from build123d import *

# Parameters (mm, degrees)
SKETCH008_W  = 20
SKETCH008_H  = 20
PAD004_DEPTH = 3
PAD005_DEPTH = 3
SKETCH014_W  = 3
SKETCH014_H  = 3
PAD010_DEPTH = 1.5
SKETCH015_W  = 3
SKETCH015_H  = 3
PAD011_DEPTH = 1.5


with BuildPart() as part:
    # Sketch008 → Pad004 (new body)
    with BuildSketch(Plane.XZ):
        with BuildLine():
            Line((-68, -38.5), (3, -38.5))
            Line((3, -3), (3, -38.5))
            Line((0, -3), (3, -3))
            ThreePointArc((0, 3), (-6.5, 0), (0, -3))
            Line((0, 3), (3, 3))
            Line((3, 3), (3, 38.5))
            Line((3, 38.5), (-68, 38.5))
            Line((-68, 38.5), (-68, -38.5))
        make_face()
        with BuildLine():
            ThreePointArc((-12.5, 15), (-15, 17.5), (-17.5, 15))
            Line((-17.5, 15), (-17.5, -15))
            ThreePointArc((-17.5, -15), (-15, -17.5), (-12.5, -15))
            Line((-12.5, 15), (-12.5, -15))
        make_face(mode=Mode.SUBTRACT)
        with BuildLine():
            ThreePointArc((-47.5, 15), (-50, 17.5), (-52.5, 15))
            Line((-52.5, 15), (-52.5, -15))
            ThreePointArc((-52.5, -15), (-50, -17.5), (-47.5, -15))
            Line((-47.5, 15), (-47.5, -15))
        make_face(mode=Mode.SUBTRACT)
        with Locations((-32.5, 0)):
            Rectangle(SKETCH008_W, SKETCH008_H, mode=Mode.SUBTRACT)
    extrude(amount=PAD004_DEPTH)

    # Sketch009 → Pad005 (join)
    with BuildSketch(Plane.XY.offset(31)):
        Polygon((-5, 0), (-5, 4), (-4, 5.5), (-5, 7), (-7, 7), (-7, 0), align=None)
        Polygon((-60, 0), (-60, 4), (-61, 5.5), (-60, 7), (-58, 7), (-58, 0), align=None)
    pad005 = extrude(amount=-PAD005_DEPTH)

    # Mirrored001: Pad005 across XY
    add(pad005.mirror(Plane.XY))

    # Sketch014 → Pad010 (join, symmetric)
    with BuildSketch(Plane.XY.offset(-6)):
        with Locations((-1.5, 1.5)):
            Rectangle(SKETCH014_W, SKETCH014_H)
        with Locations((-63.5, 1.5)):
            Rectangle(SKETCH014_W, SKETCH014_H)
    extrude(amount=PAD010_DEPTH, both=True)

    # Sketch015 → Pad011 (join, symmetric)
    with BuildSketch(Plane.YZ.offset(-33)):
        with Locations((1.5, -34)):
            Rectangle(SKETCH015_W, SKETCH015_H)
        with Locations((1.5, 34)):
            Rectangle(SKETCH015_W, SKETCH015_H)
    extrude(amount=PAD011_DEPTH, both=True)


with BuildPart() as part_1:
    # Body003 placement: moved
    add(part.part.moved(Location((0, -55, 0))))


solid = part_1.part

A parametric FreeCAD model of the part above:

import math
import FreeCAD as App
import Part
import Sketcher

doc = App.newDocument("Part")
body = doc.addObject("PartDesign::Body", "Body")

# Sketch on XZ plane
sketch1 = body.newObject("Sketcher::SketchObject", "Sketch")
sketch1.AttachmentSupport = (doc.getObject("XZ_Plane"), [""])
sketch1.MapMode = "FlatFace"
sketch1.addGeometry([
    Part.LineSegment(App.Vector(-68, -38.5, 0), App.Vector(3, -38.5, 0)),  # 0
    Part.LineSegment(App.Vector(3, -38.5, 0), App.Vector(3, -3, 0)),  # 1
    Part.LineSegment(App.Vector(3, -3, 0), App.Vector(0, -3, 0)),  # 2
    Part.ArcOfCircle(Part.Circle(App.Vector(-2.6, 0, 0), App.Vector(0, 0, 1), 3.9), math.radians(50), math.radians(310)),  # 3
    Part.LineSegment(App.Vector(0, 3, 0), App.Vector(3, 3, 0)),  # 4
    Part.LineSegment(App.Vector(3, 3, 0), App.Vector(3, 38.5, 0)),  # 5
    Part.LineSegment(App.Vector(3, 38.5, 0), App.Vector(-68, 38.5, 0)),  # 6
    Part.LineSegment(App.Vector(-68, 38.5, 0), App.Vector(-68, -38.5, 0)),  # 7
    Part.ArcOfCircle(Part.Circle(App.Vector(-50, 15, 0), App.Vector(0, 0, 1), 2.5), math.radians(0), math.radians(180)),  # 8
    Part.LineSegment(App.Vector(-47.5, 15, 0), App.Vector(-47.5, -15, 0)),  # 9
    Part.ArcOfCircle(Part.Circle(App.Vector(-50, -15, 0), App.Vector(0, 0, 1), 2.5), math.radians(180), math.radians(360)),  # 10
    Part.LineSegment(App.Vector(-52.5, -15, 0), App.Vector(-52.5, 15, 0)),  # 11
    Part.LineSegment(App.Vector(-22.5, -10, 0), App.Vector(-42.5, -10, 0)),  # 12
    Part.LineSegment(App.Vector(-42.5, -10, 0), App.Vector(-42.5, 10, 0)),  # 13
    Part.LineSegment(App.Vector(-42.5, 10, 0), App.Vector(-22.5, 10, 0)),  # 14
    Part.LineSegment(App.Vector(-22.5, 10, 0), App.Vector(-22.5, -10, 0)),  # 15
    Part.ArcOfCircle(Part.Circle(App.Vector(-15, 15, 0), App.Vector(0, 0, 1), 2.5), math.radians(0), math.radians(180)),  # 16
    Part.LineSegment(App.Vector(-12.5, 15, 0), App.Vector(-12.5, -15, 0)),  # 17
    Part.ArcOfCircle(Part.Circle(App.Vector(-15, -15, 0), App.Vector(0, 0, 1), 2.5), math.radians(180), math.radians(360)),  # 18
    Part.LineSegment(App.Vector(-17.5, -15, 0), App.Vector(-17.5, 15, 0)),  # 19
], False)
sketch1.addConstraint([
    Sketcher.Constraint("Coincident", 0, 2, 1, 1),
    Sketcher.Constraint("Coincident", 1, 2, 2, 1),
    Sketcher.Constraint("Coincident", 2, 2, 3, 2),
    Sketcher.Constraint("Coincident", 3, 1, 4, 1),
    Sketcher.Constraint("Coincident", 4, 2, 5, 1),
    Sketcher.Constraint("Coincident", 5, 2, 6, 1),
    Sketcher.Constraint("Coincident", 6, 2, 7, 1),
    Sketcher.Constraint("Coincident", 7, 2, 0, 1),
    Sketcher.Constraint("Tangent", 8, 1, 9, 1),
    Sketcher.Constraint("Tangent", 9, 2, 10, 2),
    Sketcher.Constraint("Tangent", 10, 1, 11, 1),
    Sketcher.Constraint("Tangent", 11, 2, 8, 2),
    Sketcher.Constraint("Coincident", 12, 2, 13, 1),
    Sketcher.Constraint("Coincident", 13, 2, 14, 1),
    Sketcher.Constraint("Coincident", 14, 2, 15, 1),
    Sketcher.Constraint("Coincident", 15, 2, 12, 1),
    Sketcher.Constraint("Tangent", 16, 1, 17, 1),
    Sketcher.Constraint("Tangent", 17, 2, 18, 2),
    Sketcher.Constraint("Tangent", 18, 1, 19, 1),
    Sketcher.Constraint("Tangent", 19, 2, 16, 2),
    Sketcher.Constraint("Horizontal", 0),
    Sketcher.Constraint("Vertical", 1),
    Sketcher.Constraint("Horizontal", 2),
    Sketcher.Constraint("Horizontal", 4),
    Sketcher.Constraint("Vertical", 5),
    Sketcher.Constraint("Horizontal", 6),
    Sketcher.Constraint("Vertical", 7),
    Sketcher.Constraint("Vertical", 9),
    Sketcher.Constraint("Vertical", 11),
    Sketcher.Constraint("Horizontal", 12),
    Sketcher.Constraint("Vertical", 13),
    Sketcher.Constraint("Horizontal", 14),
    Sketcher.Constraint("Vertical", 15),
    Sketcher.Constraint("Vertical", 17),
    Sketcher.Constraint("Vertical", 19),
    Sketcher.Constraint("Equal", 10, 16),
    Sketcher.Constraint("Symmetric", 2, 2, 3, 1, -1, 1),
    Sketcher.Constraint("Symmetric", 0, 2, 5, 2, -1),
    Sketcher.Constraint("PointOnObject", 3, 3, -1),
    Sketcher.Constraint("Horizontal", 8, 3, 16, 3),
    Sketcher.Constraint("Horizontal", 10, 3, 18, 3),
    Sketcher.Constraint("Equal", 14, 13),
    Sketcher.Constraint("Radius", 8, 2.5),
    Sketcher.Constraint("DistanceX", 0, 1, 0, 2, 71.0),
    Sketcher.Constraint("DistanceX", 2, 2, 2, 1, 3.0),
    Sketcher.Constraint("DistanceX", 12, 2, 12, 1, 20.0),
    Sketcher.Constraint("DistanceY", 7, 2, 7, 1, 77.0),
    Sketcher.Constraint("DistanceY", 9, 2, 9, 1, 30.0),
    Sketcher.Constraint("DistanceY", 1, 1, 1, 2, 35.5),
    Sketcher.Constraint("DistanceX", 8, 3, -1, 1, 50.0),
    Sketcher.Constraint("DistanceY", -1, 1, 8, 3, 15.0),
    Sketcher.Constraint("DistanceX", 16, 3, -1, 1, 15.0),
    Sketcher.Constraint("DistanceY", 12, 2, -1, 1, 10.0),
    Sketcher.Constraint("DistanceX", 9, 2, 12, 2, 5.0),
    Sketcher.Constraint("Radius", 3, 3.942308),
])
pad1 = body.newObject("PartDesign::Pad", "Pad")
pad1.Profile = sketch1
pad1.Length = 3

# Sketch on XY plane
sketch2 = body.newObject("Sketcher::SketchObject", "Sketch001")
sketch2.AttachmentSupport = (doc.getObject("XY_Plane"), [""])
sketch2.MapMode = "FlatFace"
sketch2.AttachmentOffset = App.Placement(App.Vector(0, 0, 31), App.Rotation())
sketch2.addGeometry([
    Part.LineSegment(App.Vector(-5, 0, 0), App.Vector(-5, 4, 0)),  # 0
    Part.LineSegment(App.Vector(-5, 4, 0), App.Vector(-4, 5.5, 0)),  # 1
    Part.LineSegment(App.Vector(-4, 5.5, 0), App.Vector(-5, 7, 0)),  # 2
    Part.LineSegment(App.Vector(-5, 7, 0), App.Vector(-7, 7, 0)),  # 3
    Part.LineSegment(App.Vector(-7, 7, 0), App.Vector(-7, 0, 0)),  # 4
    Part.LineSegment(App.Vector(-7, 0, 0), App.Vector(-5, 0, 0)),  # 5
    Part.LineSegment(App.Vector(-60, 4, 0), App.Vector(-60, 0, 0)),  # 6
    Part.LineSegment(App.Vector(-60, 0, 0), App.Vector(-58, 0, 0)),  # 7
    Part.LineSegment(App.Vector(-58, 0, 0), App.Vector(-58, 7, 0)),  # 8
    Part.LineSegment(App.Vector(-58, 7, 0), App.Vector(-60, 7, 0)),  # 9
    Part.LineSegment(App.Vector(-60, 7, 0), App.Vector(-61, 5.5, 0)),  # 10
    Part.LineSegment(App.Vector(-61, 5.5, 0), App.Vector(-60, 4, 0)),  # 11
], False)
sketch2.addConstraint([
    Sketcher.Constraint("Coincident", 0, 2, 1, 1),
    Sketcher.Constraint("Coincident", 1, 2, 2, 1),
    Sketcher.Constraint("Coincident", 2, 2, 3, 1),
    Sketcher.Constraint("Coincident", 3, 2, 4, 1),
    Sketcher.Constraint("Coincident", 4, 2, 5, 1),
    Sketcher.Constraint("Coincident", 5, 2, 0, 1),
    Sketcher.Constraint("Coincident", 6, 2, 7, 1),
    Sketcher.Constraint("Coincident", 7, 2, 8, 1),
    Sketcher.Constraint("Coincident", 8, 2, 9, 1),
    Sketcher.Constraint("Coincident", 9, 2, 10, 1),
    Sketcher.Constraint("Coincident", 10, 2, 11, 1),
    Sketcher.Constraint("Coincident", 11, 2, 6, 1),
    Sketcher.Constraint("Vertical", 0),
    Sketcher.Constraint("Horizontal", 3),
    Sketcher.Constraint("Vertical", 4),
    Sketcher.Constraint("Horizontal", 5),
    Sketcher.Constraint("Vertical", 6),
    Sketcher.Constraint("Horizontal", 7),
    Sketcher.Constraint("Vertical", 8),
    Sketcher.Constraint("Horizontal", 9),
    Sketcher.Constraint("PointOnObject", 4, 2, -1),
    Sketcher.Constraint("PointOnObject", 6, 2, -1),
    Sketcher.Constraint("Parallel", 1, 10),
    Sketcher.Constraint("Parallel", 2, 11),
    Sketcher.Constraint("Horizontal", 3, 2, 8, 2),
    Sketcher.Constraint("Horizontal", 1, 2, 10, 2),
    Sketcher.Constraint("Horizontal", 0, 2, 11, 2),
    Sketcher.Constraint("Vertical", 0, 2, 2, 2),
    Sketcher.Constraint("Vertical", 6, 2, 9, 2),
    Sketcher.Constraint("Equal", 5, 7),
    Sketcher.Constraint("DistanceX", 3, 2, 3, 1, 2.0),
    Sketcher.Constraint("DistanceY", 0, 1, 0, 2, 4.0),
    Sketcher.Constraint("DistanceY", 4, 2, 4, 1, 7.0),
    Sketcher.Constraint("DistanceX", 0, 2, -1, 1, 5.0),
    Sketcher.Constraint("DistanceX", 1, 2, -1, 1, 4.0),
    Sketcher.Constraint("DistanceX", 6, 2, -1, 1, 60.0),
])
pad2 = body.newObject("PartDesign::Pad", "Pad001")
pad2.Profile = sketch2
pad2.Length = 3
pad2.Reversed = True
doc.recompute()

mirrored = body.newObject("PartDesign::Mirrored", "Mirrored")
mirrored.Originals = [pad2]
mirrored.MirrorPlane = (doc.getObject("XY_Plane"), [""])
body.Tip = mirrored

# Sketch on XY plane
sketch3 = body.newObject("Sketcher::SketchObject", "Sketch002")
sketch3.AttachmentSupport = (doc.getObject("XY_Plane"), [""])
sketch3.MapMode = "FlatFace"
sketch3.AttachmentOffset = App.Placement(App.Vector(0, 0, -6), App.Rotation())
sketch3.addGeometry([
    Part.LineSegment(App.Vector(-3, 3, 0), App.Vector(-3, 0, 0)),  # 0
    Part.LineSegment(App.Vector(-3, 0, 0), App.Vector(0, 0, 0)),  # 1
    Part.LineSegment(App.Vector(0, 0, 0), App.Vector(0, 3, 0)),  # 2
    Part.LineSegment(App.Vector(0, 3, 0), App.Vector(-3, 3, 0)),  # 3
    Part.LineSegment(App.Vector(-65, 3, 0), App.Vector(-65, 0, 0)),  # 4
    Part.LineSegment(App.Vector(-65, 0, 0), App.Vector(-62, 0, 0)),  # 5
    Part.LineSegment(App.Vector(-62, 0, 0), App.Vector(-62, 3, 0)),  # 6
    Part.LineSegment(App.Vector(-62, 3, 0), App.Vector(-65, 3, 0)),  # 7
], False)
sketch3.addConstraint([
    Sketcher.Constraint("Coincident", 0, 2, 1, 1),
    Sketcher.Constraint("Coincident", 1, 2, 2, 1),
    Sketcher.Constraint("Coincident", 2, 2, 3, 1),
    Sketcher.Constraint("Coincident", 3, 2, 0, 1),
    Sketcher.Constraint("Coincident", 4, 2, 5, 1),
    Sketcher.Constraint("Coincident", 5, 2, 6, 1),
    Sketcher.Constraint("Coincident", 6, 2, 7, 1),
    Sketcher.Constraint("Coincident", 7, 2, 4, 1),
    Sketcher.Constraint("Vertical", 0),
    Sketcher.Constraint("Horizontal", 1),
    Sketcher.Constraint("Vertical", 2),
    Sketcher.Constraint("Horizontal", 3),
    Sketcher.Constraint("Vertical", 4),
    Sketcher.Constraint("Horizontal", 5),
    Sketcher.Constraint("Vertical", 6),
    Sketcher.Constraint("Horizontal", 7),
    Sketcher.Constraint("Coincident", 1, 2, -1, 1),
    Sketcher.Constraint("PointOnObject", 4, 2, -1),
    Sketcher.Constraint("Horizontal", 3, 2, 6, 2),
    Sketcher.Constraint("Equal", 3, 5),
    Sketcher.Constraint("Equal", 7, 0),
    Sketcher.Constraint("DistanceX", 1, 1, 1, 2, 3.0),
    Sketcher.Constraint("DistanceX", 4, 2, -1, 1, 65.0),
])
pad3 = body.newObject("PartDesign::Pad", "Pad002")
pad3.Profile = sketch3
pad3.Length = 3
pad3.Midplane = True

# Sketch on YZ plane
sketch4 = body.newObject("Sketcher::SketchObject", "Sketch003")
sketch4.AttachmentSupport = (doc.getObject("YZ_Plane"), [""])
sketch4.MapMode = "FlatFace"
sketch4.AttachmentOffset = App.Placement(App.Vector(0, 0, -33), App.Rotation())
sketch4.addGeometry([
    Part.LineSegment(App.Vector(0, -32.5, 0), App.Vector(0, -35.5, 0)),  # 0
    Part.LineSegment(App.Vector(0, -35.5, 0), App.Vector(3, -35.5, 0)),  # 1
    Part.LineSegment(App.Vector(3, -35.5, 0), App.Vector(3, -32.5, 0)),  # 2
    Part.LineSegment(App.Vector(3, -32.5, 0), App.Vector(0, -32.5, 0)),  # 3
    Part.LineSegment(App.Vector(0, 35.5, 0), App.Vector(0, 32.5, 0)),  # 4
    Part.LineSegment(App.Vector(0, 32.5, 0), App.Vector(3, 32.5, 0)),  # 5
    Part.LineSegment(App.Vector(3, 32.5, 0), App.Vector(3, 35.5, 0)),  # 6
    Part.LineSegment(App.Vector(3, 35.5, 0), App.Vector(0, 35.5, 0)),  # 7
], False)
sketch4.addConstraint([
    Sketcher.Constraint("Coincident", 0, 2, 1, 1),
    Sketcher.Constraint("Coincident", 1, 2, 2, 1),
    Sketcher.Constraint("Coincident", 2, 2, 3, 1),
    Sketcher.Constraint("Coincident", 3, 2, 0, 1),
    Sketcher.Constraint("Coincident", 4, 2, 5, 1),
    Sketcher.Constraint("Coincident", 5, 2, 6, 1),
    Sketcher.Constraint("Coincident", 6, 2, 7, 1),
    Sketcher.Constraint("Coincident", 7, 2, 4, 1),
    Sketcher.Constraint("Vertical", 0),
    Sketcher.Constraint("Horizontal", 1),
    Sketcher.Constraint("Vertical", 2),
    Sketcher.Constraint("Horizontal", 3),
    Sketcher.Constraint("Vertical", 4),
    Sketcher.Constraint("Horizontal", 5),
    Sketcher.Constraint("Vertical", 6),
    Sketcher.Constraint("Horizontal", 7),
    Sketcher.Constraint("Symmetric", 3, 2, 4, 2, -1, 1),
    Sketcher.Constraint("Symmetric", 1, 2, 6, 2, -1),
    Sketcher.Constraint("PointOnObject", 0, 2, -2),
    Sketcher.Constraint("Equal", 7, 0),
    Sketcher.Constraint("DistanceX", 1, 1, 1, 2, 3.0),
    Sketcher.Constraint("DistanceY", 3, 2, 4, 2, 65.0),
])
pad4 = body.newObject("PartDesign::Pad", "Pad003")
pad4.Profile = sketch4
pad4.Length = 3
pad4.Midplane = True
body2 = doc.addObject("PartDesign::Body", "Body001")
doc.recompute()

body.Placement = App.Placement(App.Vector(0, -55, 0), App.Rotation(App.Vector(0, 0, 1), 0))
boolean = body2.newObject("PartDesign::Boolean", "Boolean")
boolean.Type = "Fuse"
boolean.addObjects([body])

doc.recompute()
